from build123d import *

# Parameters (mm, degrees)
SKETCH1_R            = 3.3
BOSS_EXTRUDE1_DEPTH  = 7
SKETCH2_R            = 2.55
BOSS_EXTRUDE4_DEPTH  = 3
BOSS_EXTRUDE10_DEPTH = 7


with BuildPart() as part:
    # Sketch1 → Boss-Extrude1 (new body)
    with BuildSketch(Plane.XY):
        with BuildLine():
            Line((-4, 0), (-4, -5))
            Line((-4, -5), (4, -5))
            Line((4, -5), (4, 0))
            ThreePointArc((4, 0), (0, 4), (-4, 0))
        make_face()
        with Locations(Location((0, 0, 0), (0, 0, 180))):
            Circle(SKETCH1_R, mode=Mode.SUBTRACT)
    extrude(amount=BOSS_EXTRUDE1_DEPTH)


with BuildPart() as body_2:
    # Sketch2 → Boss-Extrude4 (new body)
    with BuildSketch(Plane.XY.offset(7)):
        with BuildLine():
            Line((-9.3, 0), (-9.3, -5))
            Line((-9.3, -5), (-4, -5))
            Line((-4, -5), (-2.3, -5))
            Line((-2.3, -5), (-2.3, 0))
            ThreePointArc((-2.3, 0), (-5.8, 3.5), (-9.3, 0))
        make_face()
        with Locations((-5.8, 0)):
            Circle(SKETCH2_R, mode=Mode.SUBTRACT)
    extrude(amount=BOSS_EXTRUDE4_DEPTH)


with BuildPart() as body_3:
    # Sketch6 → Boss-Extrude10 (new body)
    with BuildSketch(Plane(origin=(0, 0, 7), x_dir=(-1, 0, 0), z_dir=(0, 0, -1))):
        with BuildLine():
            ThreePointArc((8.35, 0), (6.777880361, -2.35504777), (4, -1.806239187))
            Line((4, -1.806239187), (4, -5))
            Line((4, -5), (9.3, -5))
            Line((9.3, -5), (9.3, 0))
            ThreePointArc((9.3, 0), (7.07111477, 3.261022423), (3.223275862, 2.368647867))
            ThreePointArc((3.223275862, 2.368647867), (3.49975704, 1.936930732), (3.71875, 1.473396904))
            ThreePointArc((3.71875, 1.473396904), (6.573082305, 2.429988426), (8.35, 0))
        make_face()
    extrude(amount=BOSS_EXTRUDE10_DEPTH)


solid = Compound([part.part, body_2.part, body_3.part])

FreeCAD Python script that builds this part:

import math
import FreeCAD as App
import Part
import Sketcher

V = App.Vector
Q = App.Units.Quantity

doc = App.newDocument("Part")
body = doc.addObject("PartDesign::Body", "Body")

sketch1 = body.newObject("Sketcher::SketchObject", "Sketch")
sketch1.AttachmentSupport = (doc.getObject("XY_Plane"), [""])
sketch1.MapMode = "FlatFace"
sketch1.addGeometry([
    Part.LineSegment(V(-4, 0, 0), V(-4, -5, 0)),
    Part.LineSegment(V(-4, -5, 0), V(4, -5, 0)),
    Part.LineSegment(V(4, -5, 0), V(4, 0, 0)),
    Part.ArcOfCircle(Part.Circle(V(0, 0, 0), V(0, 0, 1), 4), math.radians(0), math.radians(180)),
    Part.Circle(V(0, 0, 0), V(0, 0, 1), 3.3),
], False)
sketch1.addConstraint([
    Sketcher.Constraint("Coincident", 0, 2, 1, 1),
    Sketcher.Constraint("Coincident", 1, 2, 2, 1),
    Sketcher.Constraint("Tangent", 2, 2, 3, 1),
    Sketcher.Constraint("Tangent", 3, 2, 0, 1),
    Sketcher.Constraint("Vertical", 0),
    Sketcher.Constraint("Horizontal", 1),
    Sketcher.Constraint("Vertical", 2),
    Sketcher.Constraint("Coincident", 3, 3, -1, 1),
    Sketcher.Constraint("Coincident", 4, 3, -1, 1),
    Sketcher.Constraint("Radius", 3, Q("4 mm")),
    Sketcher.Constraint("Diameter", 4, Q("6.6 mm")),
    Sketcher.Constraint("DistanceY", 0, 2, 0, 1, Q("5 mm")),
])
pad1 = body.newObject("PartDesign::Pad", "Pad")
pad1.Profile = sketch1
pad1.Length = 7
body2 = doc.addObject("PartDesign::Body", "Body001")

sketch2 = body2.newObject("Sketcher::SketchObject", "Sketch001")
sketch2.AttachmentSupport = (doc.getObject("XY_Plane001"), [""])
sketch2.MapMode = "FlatFace"
sketch2.AttachmentOffset = App.Placement(V(0, 0, 7), App.Rotation())
sketch2.addGeometry([
    Part.LineSegment(V(-9.3, 0, 0), V(-9.3, -5, 0)),
    Part.LineSegment(V(-9.3, -5, 0), V(-2.3, -5, 0)),
    Part.LineSegment(V(-2.3, -5, 0), V(-2.3, 0, 0)),
    Part.ArcOfCircle(Part.Circle(V(-5.8, 0, 0), V(0, 0, 1), 3.5), math.radians(0), math.radians(180)),
    Part.Circle(V(-5.8, 0, 0), V(0, 0, 1), 2.5),
], False)
sketch2.addConstraint([
    Sketcher.Constraint("Coincident", 0, 2, 1, 1),
    Sketcher.Constraint("Coincident", 1, 2, 2, 1),
    Sketcher.Constraint("Tangent", 2, 2, 3, 1),
    Sketcher.Constraint("Tangent", 3, 2, 0, 1),
    Sketcher.Constraint("Vertical", 0),
    Sketcher.Constraint("Horizontal", 1),
    Sketcher.Constraint("Vertical", 2),
    Sketcher.Constraint("Coincident", 4, 3, 3, 3),
    Sketcher.Constraint("PointOnObject", 3, 3, -1),
    Sketcher.Constraint("Diameter", 4, Q("5.1 mm")),
    Sketcher.Constraint("Radius", 3, Q("3.5 mm")),
    Sketcher.Constraint("DistanceY", 0, 2, 0, 1, Q("5 mm")),
    Sketcher.Constraint("DistanceX", 3, 3, -1, 1, Q("5.8 mm")),
])
pad2 = body2.newObject("PartDesign::Pad", "Pad001")
pad2.Profile = sketch2
pad2.Length = 3
body3 = doc.addObject("PartDesign::Body", "Body002")

sketch3 = body3.newObject("Sketcher::SketchObject", "Sketch002")
sketch3.AttachmentSupport = (doc.getObject("XY_Plane002"), [""])
sketch3.MapMode = "FlatFace"
sketch3.AttachmentOffset = App.Placement(V(0, 0, 7), App.Rotation())
sketch3.addGeometry([
    Part.ArcOfCircle(Part.Circle(V(-5.8, 0, 0), V(0, 0, 1), 2.5), math.radians(180), math.radians(315)),
    Part.LineSegment(V(-4, -1.8, 0), V(-4, -5, 0)),
    Part.LineSegment(V(-4, -5, 0), V(-9.3, -5, 0)),
    Part.LineSegment(V(-9.3, -5, 0), V(-9.3, 0, 0)),
    Part.ArcOfCircle(Part.Circle(V(-5.8, 0, 0), V(0, 0, 1), 3.5), math.radians(43), math.radians(180)),
    Part.ArcOfCircle(Part.Circle(V(0, 0, 0), V(0, 0, 1), 4), math.radians(143.69), math.radians(158.39)),
    Part.ArcOfCircle(Part.Circle(V(-5.8, 0, 0), V(0, 0, 1), 2.5), math.radians(35), math.radians(180)),
], False)
sketch3.addConstraint([
    Sketcher.Constraint("Coincident", 0, 2, 1, 1),
    Sketcher.Constraint("Coincident", 1, 2, 2, 1),
    Sketcher.Constraint("Coincident", 2, 2, 3, 1),
    Sketcher.Constraint("Tangent", 3, 2, 4, 2),
    Sketcher.Constraint("Coincident", 4, 1, 5, 1),
    Sketcher.Constraint("Coincident", 5, 2, 6, 1),
    Sketcher.Constraint("Tangent", 6, 2, 0, 1),
    Sketcher.Constraint("Vertical", 1),
    Sketcher.Constraint("Horizontal", 2),
    Sketcher.Constraint("Vertical", 3),
    Sketcher.Constraint("Coincident", 5, 3, -1, 1),
    Sketcher.Constraint("Coincident", 4, 3, 0, 3),
    Sketcher.Constraint("Equal", 0, 6),
    Sketcher.Constraint("PointOnObject", 0, 3, -1),
    Sketcher.Constraint("PointOnObject", 6, 2, -1),
    Sketcher.Constraint("Radius", 5, Q("4 mm")),
    Sketcher.Constraint("Radius", 4, Q("3.5 mm")),
    Sketcher.Constraint("DistanceY", 3, 1, 3, 2, Q("5 mm")),
    Sketcher.Constraint("Radius", 0, Q("2.55 mm")),
    Sketcher.Constraint("DistanceX", 2, 2, 2, 1, Q("5.3 mm")),
    Sketcher.Constraint("DistanceX", 0, 2, -1, 1, Q("4 mm")),
])
pad3 = body3.newObject("PartDesign::Pad", "Pad002")
pad3.Profile = sketch3
pad3.Length = 7
pad3.Reversed = True

doc.recompute()
